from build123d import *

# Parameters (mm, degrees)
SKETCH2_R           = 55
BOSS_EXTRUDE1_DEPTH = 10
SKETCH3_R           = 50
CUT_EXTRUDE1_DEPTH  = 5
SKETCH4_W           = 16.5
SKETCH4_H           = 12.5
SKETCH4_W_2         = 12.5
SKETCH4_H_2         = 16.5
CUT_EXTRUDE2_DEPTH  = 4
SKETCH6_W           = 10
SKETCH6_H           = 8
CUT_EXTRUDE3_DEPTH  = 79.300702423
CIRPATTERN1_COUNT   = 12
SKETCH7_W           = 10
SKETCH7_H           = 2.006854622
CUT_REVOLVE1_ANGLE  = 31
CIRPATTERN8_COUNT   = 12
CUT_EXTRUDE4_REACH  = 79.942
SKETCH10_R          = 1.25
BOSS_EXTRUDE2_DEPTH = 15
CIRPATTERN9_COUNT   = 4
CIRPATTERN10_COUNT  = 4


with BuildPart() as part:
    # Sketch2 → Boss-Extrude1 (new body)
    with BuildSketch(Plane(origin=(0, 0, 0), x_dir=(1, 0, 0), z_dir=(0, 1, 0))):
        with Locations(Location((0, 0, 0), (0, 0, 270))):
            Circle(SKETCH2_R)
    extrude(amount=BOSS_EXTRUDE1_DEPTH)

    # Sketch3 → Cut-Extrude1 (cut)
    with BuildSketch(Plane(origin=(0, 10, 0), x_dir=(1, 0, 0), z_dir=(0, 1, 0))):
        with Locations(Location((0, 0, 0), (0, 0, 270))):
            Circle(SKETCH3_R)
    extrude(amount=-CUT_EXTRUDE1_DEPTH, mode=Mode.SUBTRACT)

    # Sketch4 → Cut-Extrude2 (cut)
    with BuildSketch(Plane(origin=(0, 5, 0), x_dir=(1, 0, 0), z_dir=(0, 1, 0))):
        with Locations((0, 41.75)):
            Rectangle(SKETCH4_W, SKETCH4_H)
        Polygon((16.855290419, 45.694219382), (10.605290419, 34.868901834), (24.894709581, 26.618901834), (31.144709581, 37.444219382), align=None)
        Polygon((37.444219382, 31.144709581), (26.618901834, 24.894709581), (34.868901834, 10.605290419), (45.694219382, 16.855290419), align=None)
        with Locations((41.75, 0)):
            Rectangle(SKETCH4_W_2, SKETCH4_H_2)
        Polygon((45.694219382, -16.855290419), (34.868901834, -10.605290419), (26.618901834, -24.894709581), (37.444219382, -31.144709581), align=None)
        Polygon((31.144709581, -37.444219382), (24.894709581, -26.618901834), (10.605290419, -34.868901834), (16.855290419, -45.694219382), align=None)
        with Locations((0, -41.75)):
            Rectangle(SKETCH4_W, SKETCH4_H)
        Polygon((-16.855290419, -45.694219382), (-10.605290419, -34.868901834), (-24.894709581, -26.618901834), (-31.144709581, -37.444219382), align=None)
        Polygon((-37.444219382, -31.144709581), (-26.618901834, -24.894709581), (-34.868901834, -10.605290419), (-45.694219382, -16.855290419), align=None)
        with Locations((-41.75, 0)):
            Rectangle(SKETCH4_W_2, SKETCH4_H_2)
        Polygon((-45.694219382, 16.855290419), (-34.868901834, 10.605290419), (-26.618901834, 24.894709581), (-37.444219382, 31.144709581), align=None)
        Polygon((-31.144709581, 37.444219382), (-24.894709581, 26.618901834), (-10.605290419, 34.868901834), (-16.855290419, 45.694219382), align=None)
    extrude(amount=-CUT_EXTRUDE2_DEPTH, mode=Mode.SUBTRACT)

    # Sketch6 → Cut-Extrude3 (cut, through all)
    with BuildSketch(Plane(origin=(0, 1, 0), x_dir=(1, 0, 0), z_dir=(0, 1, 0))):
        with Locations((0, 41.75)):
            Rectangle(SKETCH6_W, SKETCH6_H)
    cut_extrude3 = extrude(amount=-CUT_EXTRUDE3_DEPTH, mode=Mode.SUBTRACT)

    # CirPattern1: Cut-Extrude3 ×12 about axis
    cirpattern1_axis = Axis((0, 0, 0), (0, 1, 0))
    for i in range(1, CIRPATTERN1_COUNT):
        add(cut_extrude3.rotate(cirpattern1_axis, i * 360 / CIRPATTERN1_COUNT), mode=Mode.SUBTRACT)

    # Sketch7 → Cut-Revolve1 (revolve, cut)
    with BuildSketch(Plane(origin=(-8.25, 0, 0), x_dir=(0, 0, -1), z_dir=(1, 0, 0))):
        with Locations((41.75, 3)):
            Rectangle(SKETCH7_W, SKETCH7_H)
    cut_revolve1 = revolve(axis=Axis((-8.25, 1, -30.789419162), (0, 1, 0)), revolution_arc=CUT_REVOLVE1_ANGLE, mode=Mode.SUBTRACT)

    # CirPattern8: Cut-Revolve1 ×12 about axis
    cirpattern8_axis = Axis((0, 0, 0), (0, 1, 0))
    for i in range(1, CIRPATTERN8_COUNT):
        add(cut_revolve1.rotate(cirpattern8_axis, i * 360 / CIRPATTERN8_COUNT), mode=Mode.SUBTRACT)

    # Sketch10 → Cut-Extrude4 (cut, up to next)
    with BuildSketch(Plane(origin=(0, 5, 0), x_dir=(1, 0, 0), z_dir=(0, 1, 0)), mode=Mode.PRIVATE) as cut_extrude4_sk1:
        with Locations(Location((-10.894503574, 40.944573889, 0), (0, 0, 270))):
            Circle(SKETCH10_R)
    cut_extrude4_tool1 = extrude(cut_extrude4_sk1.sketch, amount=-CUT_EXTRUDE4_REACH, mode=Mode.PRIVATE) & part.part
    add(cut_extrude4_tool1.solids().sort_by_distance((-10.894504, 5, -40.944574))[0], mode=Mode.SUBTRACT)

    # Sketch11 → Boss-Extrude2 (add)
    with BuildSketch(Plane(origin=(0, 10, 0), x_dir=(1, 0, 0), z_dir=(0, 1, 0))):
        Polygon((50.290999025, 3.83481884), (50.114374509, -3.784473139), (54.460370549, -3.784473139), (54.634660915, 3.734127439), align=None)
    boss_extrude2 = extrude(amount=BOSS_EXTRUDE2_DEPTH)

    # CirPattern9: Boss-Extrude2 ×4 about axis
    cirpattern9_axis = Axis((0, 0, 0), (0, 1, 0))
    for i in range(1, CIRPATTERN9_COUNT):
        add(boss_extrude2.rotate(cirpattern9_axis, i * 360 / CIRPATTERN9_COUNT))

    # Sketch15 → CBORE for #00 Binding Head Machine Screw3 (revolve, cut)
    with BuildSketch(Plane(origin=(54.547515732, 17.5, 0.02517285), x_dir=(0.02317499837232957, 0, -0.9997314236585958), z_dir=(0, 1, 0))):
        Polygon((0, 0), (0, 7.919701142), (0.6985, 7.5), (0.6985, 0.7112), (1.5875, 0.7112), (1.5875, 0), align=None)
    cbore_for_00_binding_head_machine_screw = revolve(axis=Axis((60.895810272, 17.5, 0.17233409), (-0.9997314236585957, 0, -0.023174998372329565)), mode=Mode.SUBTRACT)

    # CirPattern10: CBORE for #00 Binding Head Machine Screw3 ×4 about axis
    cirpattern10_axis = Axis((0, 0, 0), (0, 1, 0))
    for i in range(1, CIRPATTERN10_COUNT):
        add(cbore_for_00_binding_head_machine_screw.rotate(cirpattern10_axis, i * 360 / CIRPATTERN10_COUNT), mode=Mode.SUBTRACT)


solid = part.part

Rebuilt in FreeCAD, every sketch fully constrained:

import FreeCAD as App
import Part
import Sketcher
from FreeCAD import Vector
Q = App.Units.Quantity

doc = App.newDocument("Part")
params = doc.addObject("Spreadsheet::Sheet", "Params")
for row, (alias, value) in enumerate([
    ("sketch1_diameter", "110 mm"),
    ("pad1_length", "10 mm"),
    ("sketch2_diameter", "100 mm"),
    ("pocket1_length", "5 mm"),
    ("sketch3_width", "16.5 mm"),
    ("sketch3_width2", "12.5 mm"),
    ("sketch3_length", "12.5 mm"),
    ("sketch3_length2", "16.5 mm"),
    ("pocket2_length", "4 mm"),
    ("sketch4_width", "10 mm"),
    ("sketch4_height", "8 mm"),
    ("sketch5_height", "10 mm"),
    ("groove_angle", "31 deg"),
    ("sketch6_diameter", "2.5 mm"),
    ("pad2_length", "15 mm"),
    ("groove2_angle", "360 deg"),
], start=1):
    params.set(f"A{row}", alias)
    params.set(f"B{row}", "=" + value)
    params.setAlias(f"B{row}", alias)

body = doc.addObject("PartDesign::Body", "Body")

# Sketch on XZ plane
sketch1 = body.newObject("Sketcher::SketchObject", "Sketch")
sketch1.AttachmentSupport = (doc.getObject("XZ_Plane"), [""])
sketch1.MapMode = "FlatFace"
sketch1.addGeometry(Part.Circle(Vector(0, 0, 0), Vector(0, 0, 1), 55), False)
sketch1.addConstraint(Sketcher.Constraint("Coincident", 0, 3, -1, 1))
sketch1.addConstraint(Sketcher.Constraint("Diameter", 0, 110.0))
sketch1.setExpression("Constraints[1]", "Params.sketch1_diameter")
pad1 = body.newObject("PartDesign::Pad", "Pad")
pad1.Profile = sketch1
pad1.setExpression("Length", "Params.pad1_length")
pad1.Reversed = True

# Sketch on XZ plane
sketch2 = body.newObject("Sketcher::SketchObject", "Sketch001")
sketch2.AttachmentSupport = (doc.getObject("XZ_Plane"), [""])
sketch2.MapMode = "FlatFace"
sketch2.AttachmentOffset = App.Placement(Vector(0, 0, -10), App.Rotation())
sketch2.addGeometry(Part.Circle(Vector(0, 0, 0), Vector(0, 0, 1), 50), False)
sketch2.addConstraint(Sketcher.Constraint("Coincident", 0, 3, -1, 1))
sketch2.addConstraint(Sketcher.Constraint("Diameter", 0, 100.0))
sketch2.setExpression("Constraints[1]", "Params.sketch2_diameter")
pocket1 = body.newObject("PartDesign::Pocket", "Pocket")
pocket1.Profile = sketch2
pocket1.setExpression("Length", "Params.pocket1_length")
pocket1.Reversed = True

# Sketch on XZ plane
sketch3 = body.newObject("Sketcher::SketchObject", "Sketch002")
sketch3.AttachmentSupport = (doc.getObject("XZ_Plane"), [""])
sketch3.MapMode = "FlatFace"
sketch3.AttachmentOffset = App.Placement(Vector(0, 0, -5), App.Rotation())
sketch3.addGeometry(Part.LineSegment(Vector(-8, -48, 0), Vector(-8, -36, 0)), False)
sketch3.addGeometry(Part.LineSegment(Vector(-8, -36, 0), Vector(8, -36, 0)), False)
sketch3.addGeometry(Part.LineSegment(Vector(8, -36, 0), Vector(8, -48, 0)), False)
sketch3.addGeometry(Part.LineSegment(Vector(8, -48, 0), Vector(-8, -48, 0)), False)
sketch3.addGeometry(Part.LineSegment(Vector(17, -46, 0), Vector(11, -35, 0)), False)
sketch3.addGeometry(Part.LineSegment(Vector(11, -35, 0), Vector(25, -27, 0)), False)
sketch3.addGeometry(Part.LineSegment(Vector(25, -27, 0), Vector(31, -37, 0)), False)
sketch3.addGeometry(Part.LineSegment(Vector(31, -37, 0), Vector(17, -46, 0)), False)
sketch3.addGeometry(Part.LineSegment(Vector(37, -31, 0), Vector(27, -25, 0)), False)
sketch3.addGeometry(Part.LineSegment(Vector(27, -25, 0), Vector(35, -11, 0)), False)
sketch3.addGeometry(Part.LineSegment(Vector(35, -11, 0), Vector(46, -17, 0)), False)
sketch3.addGeometry(Part.LineSegment(Vector(46, -17, 0), Vector(37, -31, 0)), False)
sketch3.addGeometry(Part.LineSegment(Vector(36, -8, 0), Vector(36, 8, 0)), False)
sketch3.addGeometry(Part.LineSegment(Vector(36, 8, 0), Vector(48, 8, 0)), False)
sketch3.addGeometry(Part.LineSegment(Vector(48, 8, 0), Vector(48, -8, 0)), False)
sketch3.addGeometry(Part.LineSegment(Vector(48, -8, 0), Vector(36, -8, 0)), False)
sketch3.addGeometry(Part.LineSegment(Vector(46, 17, 0), Vector(35, 11, 0)), False)
sketch3.addGeometry(Part.LineSegment(Vector(35, 11, 0), Vector(27, 25, 0)), False)
sketch3.addGeometry(Part.LineSegment(Vector(27, 25, 0), Vector(37, 31, 0)), False)
sketch3.addGeometry(Part.LineSegment(Vector(37, 31, 0), Vector(46, 17, 0)), False)
sketch3.addGeometry(Part.LineSegment(Vector(31, 37, 0), Vector(25, 27, 0)), False)
sketch3.addGeometry(Part.LineSegment(Vector(25, 27, 0), Vector(11, 35, 0)), False)
sketch3.addGeometry(Part.LineSegment(Vector(11, 35, 0), Vector(17, 46, 0)), False)
sketch3.addGeometry(Part.LineSegment(Vector(17, 46, 0), Vector(31, 37, 0)), False)
sketch3.addGeometry(Part.LineSegment(Vector(-8, 36, 0), Vector(-8, 48, 0)), False)
sketch3.addGeometry(Part.LineSegment(Vector(-8, 48, 0), Vector(8, 48, 0)), False)
sketch3.addGeometry(Part.LineSegment(Vector(8, 48, 0), Vector(8, 36, 0)), False)
sketch3.addGeometry(Part.LineSegment(Vector(8, 36, 0), Vector(-8, 36, 0)), False)
sketch3.addGeometry(Part.LineSegment(Vector(-17, 46, 0), Vector(-11, 35, 0)), False)
sketch3.addGeometry(Part.LineSegment(Vector(-11, 35, 0), Vector(-25, 27, 0)), False)
sketch3.addGeometry(Part.LineSegment(Vector(-25, 27, 0), Vector(-31, 37, 0)), False)
sketch3.addGeometry(Part.LineSegment(Vector(-31, 37, 0), Vector(-17, 46, 0)), False)
sketch3.addGeometry(Part.LineSegment(Vector(-37, 31, 0), Vector(-27, 25, 0)), False)
sketch3.addGeometry(Part.LineSegment(Vector(-27, 25, 0), Vector(-35, 11, 0)), False)
sketch3.addGeometry(Part.LineSegment(Vector(-35, 11, 0), Vector(-46, 17, 0)), False)
sketch3.addGeometry(Part.LineSegment(Vector(-46, 17, 0), Vector(-37, 31, 0)), False)
sketch3.addGeometry(Part.LineSegment(Vector(-48, -8, 0), Vector(-48, 8, 0)), False)
sketch3.addGeometry(Part.LineSegment(Vector(-48, 8, 0), Vector(-36, 8, 0)), False)
sketch3.addGeometry(Part.LineSegment(Vector(-36, 8, 0), Vector(-36, -8, 0)), False)
sketch3.addGeometry(Part.LineSegment(Vector(-36, -8, 0), Vector(-48, -8, 0)), False)
sketch3.addGeometry(Part.LineSegment(Vector(-46, -17, 0), Vector(-35, -11, 0)), False)
sketch3.addGeometry(Part.LineSegment(Vector(-35, -11, 0), Vector(-27, -25, 0)), False)
sketch3.addGeometry(Part.LineSegment(Vector(-27, -25, 0), Vector(-37, -31, 0)), False)
sketch3.addGeometry(Part.LineSegment(Vector(-37, -31, 0), Vector(-46, -17, 0)), False)
sketch3.addGeometry(Part.LineSegment(Vector(-31, -37, 0), Vector(-25, -27, 0)), False)
sketch3.addGeometry(Part.LineSegment(Vector(-25, -27, 0), Vector(-11, -35, 0)), False)
sketch3.addGeometry(Part.LineSegment(Vector(-11, -35, 0), Vector(-17, -46, 0)), False)
sketch3.addGeometry(Part.LineSegment(Vector(-17, -46, 0), Vector(-31, -37, 0)), False)
sketch3.addConstraint(Sketcher.Constraint("Coincident", 0, 2, 1, 1))
sketch3.addConstraint(Sketcher.Constraint("Coincident", 1, 2, 2, 1))
sketch3.addConstraint(Sketcher.Constraint("Coincident", 2, 2, 3, 1))
sketch3.addConstraint(Sketcher.Constraint("Coincident", 3, 2, 0, 1))
sketch3.addConstraint(Sketcher.Constraint("Coincident", 4, 2, 5, 1))
sketch3.addConstraint(Sketcher.Constraint("Coincident", 5, 2, 6, 1))
sketch3.addConstraint(Sketcher.Constraint("Coincident", 6, 2, 7, 1))
sketch3.addConstraint(Sketcher.Constraint("Coincident", 7, 2, 4, 1))
sketch3.addConstraint(Sketcher.Constraint("Coincident", 8, 2, 9, 1))
sketch3.addConstraint(Sketcher.Constraint("Coincident", 9, 2, 10, 1))
sketch3.addConstraint(Sketcher.Constraint("Coincident", 10, 2, 11, 1))
sketch3.addConstraint(Sketcher.Constraint("Coincident", 11, 2, 8, 1))
sketch3.addConstraint(Sketcher.Constraint("Coincident", 12, 2, 13, 1))
sketch3.addConstraint(Sketcher.Constraint("Coincident", 13, 2, 14, 1))
sketch3.addConstraint(Sketcher.Constraint("Coincident", 14, 2, 15, 1))
sketch3.addConstraint(Sketcher.Constraint("Coincident", 15, 2, 12, 1))
sketch3.addConstraint(Sketcher.Constraint("Coincident", 16, 2, 17, 1))
sketch3.addConstraint(Sketcher.Constraint("Coincident", 17, 2, 18, 1))
sketch3.addConstraint(Sketcher.Constraint("Coincident", 18, 2, 19, 1))
sketch3.addConstraint(Sketcher.Constraint("Coincident", 19, 2, 16, 1))
sketch3.addConstraint(Sketcher.Constraint("Coincident", 20, 2, 21, 1))
sketch3.addConstraint(Sketcher.Constraint("Coincident", 21, 2, 22, 1))
sketch3.addConstraint(Sketcher.Constraint("Coincident", 22, 2, 23, 1))
sketch3.addConstraint(Sketcher.Constraint("Coincident", 23, 2, 20, 1))
sketch3.addConstraint(Sketcher.Constraint("Coincident", 24, 2, 25, 1))
sketch3.addConstraint(Sketcher.Constraint("Coincident", 25, 2, 26, 1))
sketch3.addConstraint(Sketcher.Constraint("Coincident", 26, 2, 27, 1))
sketch3.addConstraint(Sketcher.Constraint("Coincident", 27, 2, 24, 1))
sketch3.addConstraint(Sketcher.Constraint("Coincident", 28, 2, 29, 1))
sketch3.addConstraint(Sketcher.Constraint("Coincident", 29, 2, 30, 1))
sketch3.addConstraint(Sketcher.Constraint("Coincident", 30, 2, 31, 1))
sketch3.addConstraint(Sketcher.Constraint("Coincident", 31, 2, 28, 1))
sketch3.addConstraint(Sketcher.Constraint("Coincident", 32, 2, 33, 1))
sketch3.addConstraint(Sketcher.Constraint("Coincident", 33, 2, 34, 1))
sketch3.addConstraint(Sketcher.Constraint("Coincident", 34, 2, 35, 1))
sketch3.addConstraint(Sketcher.Constraint("Coincident", 35, 2, 32, 1))
sketch3.addConstraint(Sketcher.Constraint("Coincident", 36, 2, 37, 1))
sketch3.addConstraint(Sketcher.Constraint("Coincident", 37, 2, 38, 1))
sketch3.addConstraint(Sketcher.Constraint("Coincident", 38, 2, 39, 1))
sketch3.addConstraint(Sketcher.Constraint("Coincident", 39, 2, 36, 1))
sketch3.addConstraint(Sketcher.Constraint("Coincident", 40, 2, 41, 1))
sketch3.addConstraint(Sketcher.Constraint("Coincident", 41, 2, 42, 1))
sketch3.addConstraint(Sketcher.Constraint("Coincident", 42, 2, 43, 1))
sketch3.addConstraint(Sketcher.Constraint("Coincident", 43, 2, 40, 1))
sketch3.addConstraint(Sketcher.Constraint("Coincident", 44, 2, 45, 1))
sketch3.addConstraint(Sketcher.Constraint("Coincident", 45, 2, 46, 1))
sketch3.addConstraint(Sketcher.Constraint("Coincident", 46, 2, 47, 1))
sketch3.addConstraint(Sketcher.Constraint("Coincident", 47, 2, 44, 1))
sketch3.addConstraint(Sketcher.Constraint("Vertical", 0))
sketch3.addConstraint(Sketcher.Constraint("Horizontal", 1))
sketch3.addConstraint(Sketcher.Constraint("Vertical", 2))
sketch3.addConstraint(Sketcher.Constraint("Horizontal", 3))
sketch3.addConstraint(Sketcher.Constraint("Vertical", 12))
sketch3.addConstraint(Sketcher.Constraint("Horizontal", 13))
sketch3.addConstraint(Sketcher.Constraint("Vertical", 14))
sketch3.addConstraint(Sketcher.Constraint("Horizontal", 15))
sketch3.addConstraint(Sketcher.Constraint("Vertical", 24))
sketch3.addConstraint(Sketcher.Constraint("Horizontal", 25))
sketch3.addConstraint(Sketcher.Constraint("Vertical", 26))
sketch3.addConstraint(Sketcher.Constraint("Horizontal", 27))
sketch3.addConstraint(Sketcher.Constraint("Vertical", 36))
sketch3.addConstraint(Sketcher.Constraint("Horizontal", 37))
sketch3.addConstraint(Sketcher.Constraint("Vertical", 38))
sketch3.addConstraint(Sketcher.Constraint("Horizontal", 39))
sketch3.addConstraint(Sketcher.Constraint("Symmetric", 2, 2, 24, 2, -1, 1))
sketch3.addConstraint(Sketcher.Constraint("Symmetric", 0, 2, 26, 2, -1, 1))
sketch3.addConstraint(Sketcher.Constraint("Symmetric", 4, 2, 28, 2, -1, 1))
sketch3.addConstraint(Sketcher.Constraint("Symmetric", 5, 2, 29, 2, -1, 1))
sketch3.addConstraint(Sketcher.Constraint("Symmetric", 6, 2, 30, 2, -1, 1))
sketch3.addConstraint(Sketcher.Constraint("Symmetric", 7, 2, 31, 2, -1, 1))
sketch3.addConstraint(Sketcher.Constraint("Symmetric", 8, 2, 32, 2, -1, 1))
sketch3.addConstraint(Sketcher.Constraint("Symmetric", 9, 2, 33, 2, -1, 1))
sketch3.addConstraint(Sketcher.Constraint("Symmetric", 10, 2, 34, 2, -1, 1))
sketch3.addConstraint(Sketcher.Constraint("Symmetric", 11, 2, 35, 2, -1, 1))
sketch3.addConstraint(Sketcher.Constraint("Symmetric", 14, 2, 36, 2, -1, 1))
sketch3.addConstraint(Sketcher.Constraint("Symmetric", 12, 2, 38, 2, -1, 1))
sketch3.addConstraint(Sketcher.Constraint("Symmetric", 16, 2, 40, 2, -1, 1))
sketch3.addConstraint(Sketcher.Constraint("Symmetric", 17, 2, 41, 2, -1, 1))
sketch3.addConstraint(Sketcher.Constraint("Symmetric", 18, 2, 42, 2, -1, 1))
sketch3.addConstraint(Sketcher.Constraint("Symmetric", 19, 2, 43, 2, -1, 1))
sketch3.addConstraint(Sketcher.Constraint("Symmetric", 20, 2, 44, 2, -1, 1))
sketch3.addConstraint(Sketcher.Constraint("Symmetric", 21, 2, 45, 2, -1, 1))
sketch3.addConstraint(Sketcher.Constraint("Symmetric", 22, 2, 46, 2, -1, 1))
sketch3.addConstraint(Sketcher.Constraint("Symmetric", 23, 2, 47, 2, -1, 1))
sketch3.addConstraint(Sketcher.Constraint("Symmetric", 21, 2, 28, 2, -2))
sketch3.addConstraint(Sketcher.Constraint("Symmetric", 20, 2, 29, 2, -2))
sketch3.addConstraint(Sketcher.Constraint("Symmetric", 23, 2, 30, 2, -2))
sketch3.addConstraint(Sketcher.Constraint("Symmetric", 22, 2, 31, 2, -2))
sketch3.addConstraint(Sketcher.Constraint("Symmetric", 17, 2, 32, 2, -2))
sketch3.addConstraint(Sketcher.Constraint("Symmetric", 16, 2, 33, 2, -2))
sketch3.addConstraint(Sketcher.Constraint("Symmetric", 19, 2, 34, 2, -2))
sketch3.addConstraint(Sketcher.Constraint("Symmetric", 18, 2, 35, 2, -2))
sketch3.addConstraint(Sketcher.Constraint("Perpendicular", 4, 5))
sketch3.addConstraint(Sketcher.Constraint("Perpendicular", 5, 6))
sketch3.addConstraint(Sketcher.Constraint("Perpendicular", 6, 7))
sketch3.addConstraint(Sketcher.Constraint("Perpendicular", 8, 9))
sketch3.addConstraint(Sketcher.Constraint("Perpendicular", 9, 10))
sketch3.addConstraint(Sketcher.Constraint("Perpendicular", 10, 11))
sketch3.addConstraint(Sketcher.Constraint("Parallel", 7, 16))
sketch3.addConstraint(Sketcher.Constraint("Horizontal", 13, 2, 36, 2))
sketch3.addConstraint(Sketcher.Constraint("Vertical", 3, 2, 24, 2))
sketch3.addConstraint(Sketcher.Constraint("Equal", 39, 0))
sketch3.addConstraint(Sketcher.Constraint("Equal", 27, 12))
sketch3.addConstraint(Sketcher.Constraint("Equal", 6, 8))
sketch3.addConstraint(Sketcher.Constraint("Equal", 7, 9))
sketch3.addConstraint(Sketcher.Constraint("Angle", 4, Q("120 deg")))
sketch3.addConstraint(Sketcher.Constraint("DistanceX", 1, 1, 1, 2, 16.5))
sketch3.addConstraint(Sketcher.Constraint("DistanceX", 13, 1, 13, 2, 12.5))
sketch3.addConstraint(Sketcher.Constraint("DistanceY", 2, 2, -1, 1, 48.0))
sketch3.addConstraint(Sketcher.Constraint("DistanceX", -1, 1, 13, 2, 48.0))
sketch3.addConstraint(Sketcher.Constraint("Distance", 4, 12.5))
sketch3.addConstraint(Sketcher.Constraint("Distance", 5, 16.5))
sketch3.addConstraint(Sketcher.Constraint("DistanceY", 9, 2, 17, 2, 35.5))
sketch3.addConstraint(Sketcher.Constraint("DistanceX", 29, 2, 21, 2, 35.5))
sketch3.addConstraint(Sketcher.Constraint("DistanceY", 4, 2, -1, 1, 34.868902))
sketch3.addConstraint(Sketcher.Constraint("DistanceX", -1, 1, 8, 2, 26.618902))
sketch3.setExpression("Constraints[106]", "Params.sketch3_width")
sketch3.setExpression("Constraints[107]", "Params.sketch3_width2")
sketch3.setExpression("Constraints[110]", "Params.sketch3_length")
sketch3.setExpression("Constraints[111]", "Params.sketch3_length2")
pocket2 = body.newObject("PartDesign::Pocket", "Pocket001")
pocket2.Profile = sketch3
pocket2.setExpression("Length", "Params.pocket2_length")
pocket2.Reversed = True

# Sketch on XZ plane
sketch4 = body.newObject("Sketcher::SketchObject", "Sketch003")
sketch4.AttachmentSupport = (doc.getObject("XZ_Plane"), [""])
sketch4.MapMode = "FlatFace"
sketch4.AttachmentOffset = App.Placement(Vector(0, 0, -1), App.Rotation())
sketch4.addGeometry(Part.LineSegment(Vector(-5, -46, 0), Vector(-5, -38, 0)), False)
sketch4.addGeometry(Part.LineSegment(Vector(-5, -38, 0), Vector(5, -38, 0)), False)
sketch4.addGeometry(Part.LineSegment(Vector(5, -38, 0), Vector(5, -46, 0)), False)
sketch4.addGeometry(Part.LineSegment(Vector(5, -46, 0), Vector(-5, -46, 0)), False)
sketch4.addConstraint(Sketcher.Constraint("Coincident", 0, 2, 1, 1))
sketch4.addConstraint(Sketcher.Constraint("Coincident", 1, 2, 2, 1))
sketch4.addConstraint(Sketcher.Constraint("Coincident", 2, 2, 3, 1))
sketch4.addConstraint(Sketcher.Constraint("Coincident", 3, 2, 0, 1))
sketch4.addConstraint(Sketcher.Constraint("Vertical", 0))
sketch4.addConstraint(Sketcher.Constraint("Horizontal", 1))
sketch4.addConstraint(Sketcher.Constraint("Vertical", 2))
sketch4.addConstraint(Sketcher.Constraint("Horizontal", 3))
sketch4.addConstraint(Sketcher.Constraint("DistanceX", 1, 1, 1, 2, 10.0))
sketch4.addConstraint(Sketcher.Constraint("DistanceY", 0, 1, 0, 2, 8.0))
sketch4.addConstraint(Sketcher.Constraint("DistanceX", 0, 2, -1, 1, 5.0))
sketch4.addConstraint(Sketcher.Constraint("DistanceY", 0, 2, -1, 1, 37.75))
sketch4.setExpression("Constraints[8]", "Params.sketch4_width")
sketch4.setExpression("Constraints[9]", "Params.sketch4_height")
pocket3 = body.newObject("PartDesign::Pocket", "Pocket002")
pocket3.Profile = sketch4
pocket3.Type = "ThroughAll"
pocket3.Reversed = True
doc.recompute()

polarpattern = body.newObject("PartDesign::PolarPattern", "PolarPattern")
polarpattern.Originals = [pocket3]
polarpattern.Axis = (doc.getObject("Y_Axis"), [""])
polarpattern.Angle = 360
polarpattern.Occurrences = 12
body.Tip = polarpattern

# Sketch on YZ plane
sketch5 = body.newObject("Sketcher::SketchObject", "Sketch004")
sketch5.AttachmentSupport = (doc.getObject("YZ_Plane"), [""])
sketch5.MapMode = "FlatFace"
sketch5.AttachmentOffset = App.Placement(Vector(0, 0, -8.25), App.Rotation())
sketch5.addGeometry(Part.LineSegment(Vector(4, -36.8, 0), Vector(2, -36.8, 0)), False)
sketch5.addGeometry(Part.LineSegment(Vector(2, -36.8, 0), Vector(2, -46.8, 0)), False)
sketch5.addGeometry(Part.LineSegment(Vector(2, -46.8, 0), Vector(4, -46.8, 0)), False)
sketch5.addGeometry(Part.LineSegment(Vector(4, -46.8, 0), Vector(4, -36.8, 0)), False)
sketch5.addGeometry(Part.LineSegment(Vector(2, -30.8, 0), Vector(4, -30.8, 0)), True)  # axis
sketch5.addConstraint(Sketcher.Constraint("Coincident", 0, 2, 1, 1))
sketch5.addConstraint(Sketcher.Constraint("Coincident", 1, 2, 2, 1))
sketch5.addConstraint(Sketcher.Constraint("Coincident", 2, 2, 3, 1))
sketch5.addConstraint(Sketcher.Constraint("Coincident", 3, 2, 0, 1))
sketch5.addConstraint(Sketcher.Constraint("Horizontal", 0))
sketch5.addConstraint(Sketcher.Constraint("Vertical", 1))
sketch5.addConstraint(Sketcher.Constraint("Horizontal", 2))
sketch5.addConstraint(Sketcher.Constraint("Vertical", 3))
sketch5.addConstraint(Sketcher.Constraint("Horizontal", 4))
sketch5.addConstraint(Sketcher.Constraint("Vertical", 1, 2, 4, 1))
sketch5.addConstraint(Sketcher.Constraint("Vertical", 3, 2, 4, 2))
sketch5.addConstraint(Sketcher.Constraint("DistanceY", 1, 2, 1, 1, 10.0))
sketch5.addConstraint(Sketcher.Constraint("DistanceY", 0, 2, -1, 1, 36.75))
sketch5.addConstraint(Sketcher.Constraint("DistanceX", 0, 2, 0, 1, 2.006855))
sketch5.addConstraint(Sketcher.Constraint("DistanceY", 4, 1, -1, 1, 30.789419))
sketch5.addConstraint(Sketcher.Constraint("DistanceX", -1, 1, 0, 2, 1.996573))
sketch5.setExpression("Constraints[11]", "Params.sketch5_height")
groove = body.newObject("PartDesign::Groove", "Groove")
groove.Profile = sketch5
groove.ReferenceAxis = (sketch5, ["Axis0"])
groove.setExpression("Angle", "Params.groove_angle")
doc.recompute()

polarpattern2 = body.newObject("PartDesign::PolarPattern", "PolarPattern001")
polarpattern2.Originals = [groove]
polarpattern2.Axis = (doc.getObject("Y_Axis"), [""])
polarpattern2.Angle = 360
polarpattern2.Occurrences = 12
body.Tip = polarpattern2

# Sketch on XZ plane
sketch6 = body.newObject("Sketcher::SketchObject", "Sketch005")
sketch6.AttachmentSupport = (doc.getObject("XZ_Plane"), [""])
sketch6.MapMode = "FlatFace"
sketch6.AttachmentOffset = App.Placement(Vector(0, 0, -5), App.Rotation())
sketch6.addGeometry(Part.Circle(Vector(-10.9, -40.9, 0), Vector(0, 0, 1), 1.2), False)
sketch6.addConstraint(Sketcher.Constraint("Diameter", 0, 2.5))
sketch6.addConstraint(Sketcher.Constraint("DistanceX", 0, 3, -1, 1, 10.894504))
sketch6.addConstraint(Sketcher.Constraint("DistanceY", 0, 3, -1, 1, 40.944574))
sketch6.setExpression("Constraints[0]", "Params.sketch6_diameter")
pocket4 = body.newObject("PartDesign::Pocket", "Pocket003")
pocket4.Profile = sketch6
pocket4.Type = "UpToFirst"
pocket4.Reversed = True

# Sketch on XZ plane
sketch7 = body.newObject("Sketcher::SketchObject", "Sketch006")
sketch7.AttachmentSupport = (doc.getObject("XZ_Plane"), [""])
sketch7.MapMode = "FlatFace"
sketch7.AttachmentOffset = App.Placement(Vector(0, 0, -10), App.Rotation())
sketch7.addGeometry(Part.LineSegment(Vector(50.3, -3.8, 0), Vector(50.1, 3.8, 0)), False)
sketch7.addGeometry(Part.LineSegment(Vector(50.1, 3.8, 0), Vector(54.5, 3.8, 0)), False)
sketch7.addGeometry(Part.LineSegment(Vector(54.5, 3.8, 0), Vector(54.6, -3.7, 0)), False)
sketch7.addGeometry(Part.LineSegment(Vector(54.6, -3.7, 0), Vector(50.3, -3.8, 0)), False)
sketch7.addConstraint(Sketcher.Constraint("Coincident", 0, 2, 1, 1))
sketch7.addConstraint(Sketcher.Constraint("Coincident", 1, 2, 2, 1))
sketch7.addConstraint(Sketcher.Constraint("Coincident", 2, 2, 3, 1))
sketch7.addConstraint(Sketcher.Constraint("Coincident", 3, 2, 0, 1))
sketch7.addConstraint(Sketcher.Constraint("Horizontal", 1))
sketch7.addConstraint(Sketcher.Constraint("Parallel", 0, 2))
sketch7.addConstraint(Sketcher.Constraint("Perpendicular", 2, 3))
sketch7.addConstraint(Sketcher.Constraint("DistanceX", -1, 1, 3, 2, 50.290999))
sketch7.addConstraint(Sketcher.Constraint("DistanceY", 2, 2, 1, 2, 7.518601))
sketch7.addConstraint(Sketcher.Constraint("Distance", 0, 7.621339))
sketch7.addConstraint(Sketcher.Constraint("Distance", 3, 4.344829))
sketch7.addConstraint(Sketcher.Constraint("DistanceY", 3, 2, -1, 1, 3.834819))
pad2 = body.newObject("PartDesign::Pad", "Pad001")
pad2.Profile = sketch7
pad2.setExpression("Length", "Params.pad2_length")
pad2.Reversed = True
doc.recompute()

polarpattern3 = body.newObject("PartDesign::PolarPattern", "PolarPattern002")
polarpattern3.Originals = [pad2]
polarpattern3.Axis = (doc.getObject("Y_Axis"), [""])
polarpattern3.Angle = 360
polarpattern3.Occurrences = 4
body.Tip = polarpattern3

# Sketch on XZ plane
sketch8 = body.newObject("Sketcher::SketchObject", "Sketch007")
sketch8.AttachmentSupport = (doc.getObject("XZ_Plane"), [""])
sketch8.MapMode = "FlatFace"
sketch8.AttachmentOffset = App.Placement(Vector(0, 0, -17.5), App.Rotation())
sketch8.addGeometry(Part.LineSegment(Vector(46.6, -0.2, 0), Vector(54.5, 0, 0)), False)
sketch8.addGeometry(Part.LineSegment(Vector(54.5, 0, 0), Vector(54.6, -1.6, 0)), False)
sketch8.addGeometry(Part.LineSegment(Vector(54.6, -1.6, 0), Vector(53.9, -1.6, 0)), False)
sketch8.addGeometry(Part.LineSegment(Vector(53.9, -1.6, 0), Vector(53.9, -0.7, 0)), False)
sketch8.addGeometry(Part.LineSegment(Vector(53.9, -0.7, 0), Vector(47.1, -0.8, 0)), False)
sketch8.addGeometry(Part.LineSegment(Vector(47.1, -0.8, 0), Vector(46.6, -0.2, 0)), False)
sketch8.addGeometry(Part.LineSegment(Vector(54.5, 0, 0), Vector(46.6, -0.2, 0)), True)  # axis
sketch8.addConstraint(Sketcher.Constraint("Coincident", 0, 2, 1, 1))
sketch8.addConstraint(Sketcher.Constraint("Coincident", 1, 2, 2, 1))
sketch8.addConstraint(Sketcher.Constraint("Coincident", 2, 2, 3, 1))
sketch8.addConstraint(Sketcher.Constraint("Coincident", 3, 2, 4, 1))
sketch8.addConstraint(Sketcher.Constraint("Coincident", 4, 2, 5, 1))
sketch8.addConstraint(Sketcher.Constraint("Coincident", 5, 2, 0, 1))
sketch8.addConstraint(Sketcher.Constraint("Coincident", 6, 1, 0, 2))
sketch8.addConstraint(Sketcher.Constraint("Coincident", 6, 2, 5, 2))
sketch8.addConstraint(Sketcher.Constraint("Perpendicular", 0, 1))
sketch8.addConstraint(Sketcher.Constraint("Perpendicular", 1, 2))
sketch8.addConstraint(Sketcher.Constraint("Perpendicular", 2, 3))
sketch8.addConstraint(Sketcher.Constraint("Perpendicular", 3, 4))
sketch8.addConstraint(Sketcher.Constraint("Distance", 3, 0.889))
sketch8.addConstraint(Sketcher.Constraint("Distance", 0, 7.919701))
sketch8.addConstraint(Sketcher.Constraint("Distance", 1, 1.5875))
sketch8.addConstraint(Sketcher.Constraint("Distance", 2, 0.7112))
sketch8.addConstraint(Sketcher.Constraint("Distance", 4, 6.7888))
sketch8.addConstraint(Sketcher.Constraint("DistanceY", 1, 2, -1, 1, 1.561901))
sketch8.addConstraint(Sketcher.Constraint("DistanceY", 3, 2, -1, 1, 0.689622))
sketch8.addConstraint(Sketcher.Constraint("DistanceX", -1, 1, 5, 2, 46.629942))
groove2 = body.newObject("PartDesign::Groove", "Groove001")
groove2.Profile = sketch8
groove2.ReferenceAxis = (sketch8, ["Axis0"])
groove2.setExpression("Angle", "Params.groove2_angle")
doc.recompute()

polarpattern4 = body.newObject("PartDesign::PolarPattern", "PolarPattern003")
polarpattern4.Originals = [groove2]
polarpattern4.Axis = (doc.getObject("Y_Axis"), [""])
polarpattern4.Angle = 360
polarpattern4.Occurrences = 4
body.Tip = polarpattern4

doc.recompute()
